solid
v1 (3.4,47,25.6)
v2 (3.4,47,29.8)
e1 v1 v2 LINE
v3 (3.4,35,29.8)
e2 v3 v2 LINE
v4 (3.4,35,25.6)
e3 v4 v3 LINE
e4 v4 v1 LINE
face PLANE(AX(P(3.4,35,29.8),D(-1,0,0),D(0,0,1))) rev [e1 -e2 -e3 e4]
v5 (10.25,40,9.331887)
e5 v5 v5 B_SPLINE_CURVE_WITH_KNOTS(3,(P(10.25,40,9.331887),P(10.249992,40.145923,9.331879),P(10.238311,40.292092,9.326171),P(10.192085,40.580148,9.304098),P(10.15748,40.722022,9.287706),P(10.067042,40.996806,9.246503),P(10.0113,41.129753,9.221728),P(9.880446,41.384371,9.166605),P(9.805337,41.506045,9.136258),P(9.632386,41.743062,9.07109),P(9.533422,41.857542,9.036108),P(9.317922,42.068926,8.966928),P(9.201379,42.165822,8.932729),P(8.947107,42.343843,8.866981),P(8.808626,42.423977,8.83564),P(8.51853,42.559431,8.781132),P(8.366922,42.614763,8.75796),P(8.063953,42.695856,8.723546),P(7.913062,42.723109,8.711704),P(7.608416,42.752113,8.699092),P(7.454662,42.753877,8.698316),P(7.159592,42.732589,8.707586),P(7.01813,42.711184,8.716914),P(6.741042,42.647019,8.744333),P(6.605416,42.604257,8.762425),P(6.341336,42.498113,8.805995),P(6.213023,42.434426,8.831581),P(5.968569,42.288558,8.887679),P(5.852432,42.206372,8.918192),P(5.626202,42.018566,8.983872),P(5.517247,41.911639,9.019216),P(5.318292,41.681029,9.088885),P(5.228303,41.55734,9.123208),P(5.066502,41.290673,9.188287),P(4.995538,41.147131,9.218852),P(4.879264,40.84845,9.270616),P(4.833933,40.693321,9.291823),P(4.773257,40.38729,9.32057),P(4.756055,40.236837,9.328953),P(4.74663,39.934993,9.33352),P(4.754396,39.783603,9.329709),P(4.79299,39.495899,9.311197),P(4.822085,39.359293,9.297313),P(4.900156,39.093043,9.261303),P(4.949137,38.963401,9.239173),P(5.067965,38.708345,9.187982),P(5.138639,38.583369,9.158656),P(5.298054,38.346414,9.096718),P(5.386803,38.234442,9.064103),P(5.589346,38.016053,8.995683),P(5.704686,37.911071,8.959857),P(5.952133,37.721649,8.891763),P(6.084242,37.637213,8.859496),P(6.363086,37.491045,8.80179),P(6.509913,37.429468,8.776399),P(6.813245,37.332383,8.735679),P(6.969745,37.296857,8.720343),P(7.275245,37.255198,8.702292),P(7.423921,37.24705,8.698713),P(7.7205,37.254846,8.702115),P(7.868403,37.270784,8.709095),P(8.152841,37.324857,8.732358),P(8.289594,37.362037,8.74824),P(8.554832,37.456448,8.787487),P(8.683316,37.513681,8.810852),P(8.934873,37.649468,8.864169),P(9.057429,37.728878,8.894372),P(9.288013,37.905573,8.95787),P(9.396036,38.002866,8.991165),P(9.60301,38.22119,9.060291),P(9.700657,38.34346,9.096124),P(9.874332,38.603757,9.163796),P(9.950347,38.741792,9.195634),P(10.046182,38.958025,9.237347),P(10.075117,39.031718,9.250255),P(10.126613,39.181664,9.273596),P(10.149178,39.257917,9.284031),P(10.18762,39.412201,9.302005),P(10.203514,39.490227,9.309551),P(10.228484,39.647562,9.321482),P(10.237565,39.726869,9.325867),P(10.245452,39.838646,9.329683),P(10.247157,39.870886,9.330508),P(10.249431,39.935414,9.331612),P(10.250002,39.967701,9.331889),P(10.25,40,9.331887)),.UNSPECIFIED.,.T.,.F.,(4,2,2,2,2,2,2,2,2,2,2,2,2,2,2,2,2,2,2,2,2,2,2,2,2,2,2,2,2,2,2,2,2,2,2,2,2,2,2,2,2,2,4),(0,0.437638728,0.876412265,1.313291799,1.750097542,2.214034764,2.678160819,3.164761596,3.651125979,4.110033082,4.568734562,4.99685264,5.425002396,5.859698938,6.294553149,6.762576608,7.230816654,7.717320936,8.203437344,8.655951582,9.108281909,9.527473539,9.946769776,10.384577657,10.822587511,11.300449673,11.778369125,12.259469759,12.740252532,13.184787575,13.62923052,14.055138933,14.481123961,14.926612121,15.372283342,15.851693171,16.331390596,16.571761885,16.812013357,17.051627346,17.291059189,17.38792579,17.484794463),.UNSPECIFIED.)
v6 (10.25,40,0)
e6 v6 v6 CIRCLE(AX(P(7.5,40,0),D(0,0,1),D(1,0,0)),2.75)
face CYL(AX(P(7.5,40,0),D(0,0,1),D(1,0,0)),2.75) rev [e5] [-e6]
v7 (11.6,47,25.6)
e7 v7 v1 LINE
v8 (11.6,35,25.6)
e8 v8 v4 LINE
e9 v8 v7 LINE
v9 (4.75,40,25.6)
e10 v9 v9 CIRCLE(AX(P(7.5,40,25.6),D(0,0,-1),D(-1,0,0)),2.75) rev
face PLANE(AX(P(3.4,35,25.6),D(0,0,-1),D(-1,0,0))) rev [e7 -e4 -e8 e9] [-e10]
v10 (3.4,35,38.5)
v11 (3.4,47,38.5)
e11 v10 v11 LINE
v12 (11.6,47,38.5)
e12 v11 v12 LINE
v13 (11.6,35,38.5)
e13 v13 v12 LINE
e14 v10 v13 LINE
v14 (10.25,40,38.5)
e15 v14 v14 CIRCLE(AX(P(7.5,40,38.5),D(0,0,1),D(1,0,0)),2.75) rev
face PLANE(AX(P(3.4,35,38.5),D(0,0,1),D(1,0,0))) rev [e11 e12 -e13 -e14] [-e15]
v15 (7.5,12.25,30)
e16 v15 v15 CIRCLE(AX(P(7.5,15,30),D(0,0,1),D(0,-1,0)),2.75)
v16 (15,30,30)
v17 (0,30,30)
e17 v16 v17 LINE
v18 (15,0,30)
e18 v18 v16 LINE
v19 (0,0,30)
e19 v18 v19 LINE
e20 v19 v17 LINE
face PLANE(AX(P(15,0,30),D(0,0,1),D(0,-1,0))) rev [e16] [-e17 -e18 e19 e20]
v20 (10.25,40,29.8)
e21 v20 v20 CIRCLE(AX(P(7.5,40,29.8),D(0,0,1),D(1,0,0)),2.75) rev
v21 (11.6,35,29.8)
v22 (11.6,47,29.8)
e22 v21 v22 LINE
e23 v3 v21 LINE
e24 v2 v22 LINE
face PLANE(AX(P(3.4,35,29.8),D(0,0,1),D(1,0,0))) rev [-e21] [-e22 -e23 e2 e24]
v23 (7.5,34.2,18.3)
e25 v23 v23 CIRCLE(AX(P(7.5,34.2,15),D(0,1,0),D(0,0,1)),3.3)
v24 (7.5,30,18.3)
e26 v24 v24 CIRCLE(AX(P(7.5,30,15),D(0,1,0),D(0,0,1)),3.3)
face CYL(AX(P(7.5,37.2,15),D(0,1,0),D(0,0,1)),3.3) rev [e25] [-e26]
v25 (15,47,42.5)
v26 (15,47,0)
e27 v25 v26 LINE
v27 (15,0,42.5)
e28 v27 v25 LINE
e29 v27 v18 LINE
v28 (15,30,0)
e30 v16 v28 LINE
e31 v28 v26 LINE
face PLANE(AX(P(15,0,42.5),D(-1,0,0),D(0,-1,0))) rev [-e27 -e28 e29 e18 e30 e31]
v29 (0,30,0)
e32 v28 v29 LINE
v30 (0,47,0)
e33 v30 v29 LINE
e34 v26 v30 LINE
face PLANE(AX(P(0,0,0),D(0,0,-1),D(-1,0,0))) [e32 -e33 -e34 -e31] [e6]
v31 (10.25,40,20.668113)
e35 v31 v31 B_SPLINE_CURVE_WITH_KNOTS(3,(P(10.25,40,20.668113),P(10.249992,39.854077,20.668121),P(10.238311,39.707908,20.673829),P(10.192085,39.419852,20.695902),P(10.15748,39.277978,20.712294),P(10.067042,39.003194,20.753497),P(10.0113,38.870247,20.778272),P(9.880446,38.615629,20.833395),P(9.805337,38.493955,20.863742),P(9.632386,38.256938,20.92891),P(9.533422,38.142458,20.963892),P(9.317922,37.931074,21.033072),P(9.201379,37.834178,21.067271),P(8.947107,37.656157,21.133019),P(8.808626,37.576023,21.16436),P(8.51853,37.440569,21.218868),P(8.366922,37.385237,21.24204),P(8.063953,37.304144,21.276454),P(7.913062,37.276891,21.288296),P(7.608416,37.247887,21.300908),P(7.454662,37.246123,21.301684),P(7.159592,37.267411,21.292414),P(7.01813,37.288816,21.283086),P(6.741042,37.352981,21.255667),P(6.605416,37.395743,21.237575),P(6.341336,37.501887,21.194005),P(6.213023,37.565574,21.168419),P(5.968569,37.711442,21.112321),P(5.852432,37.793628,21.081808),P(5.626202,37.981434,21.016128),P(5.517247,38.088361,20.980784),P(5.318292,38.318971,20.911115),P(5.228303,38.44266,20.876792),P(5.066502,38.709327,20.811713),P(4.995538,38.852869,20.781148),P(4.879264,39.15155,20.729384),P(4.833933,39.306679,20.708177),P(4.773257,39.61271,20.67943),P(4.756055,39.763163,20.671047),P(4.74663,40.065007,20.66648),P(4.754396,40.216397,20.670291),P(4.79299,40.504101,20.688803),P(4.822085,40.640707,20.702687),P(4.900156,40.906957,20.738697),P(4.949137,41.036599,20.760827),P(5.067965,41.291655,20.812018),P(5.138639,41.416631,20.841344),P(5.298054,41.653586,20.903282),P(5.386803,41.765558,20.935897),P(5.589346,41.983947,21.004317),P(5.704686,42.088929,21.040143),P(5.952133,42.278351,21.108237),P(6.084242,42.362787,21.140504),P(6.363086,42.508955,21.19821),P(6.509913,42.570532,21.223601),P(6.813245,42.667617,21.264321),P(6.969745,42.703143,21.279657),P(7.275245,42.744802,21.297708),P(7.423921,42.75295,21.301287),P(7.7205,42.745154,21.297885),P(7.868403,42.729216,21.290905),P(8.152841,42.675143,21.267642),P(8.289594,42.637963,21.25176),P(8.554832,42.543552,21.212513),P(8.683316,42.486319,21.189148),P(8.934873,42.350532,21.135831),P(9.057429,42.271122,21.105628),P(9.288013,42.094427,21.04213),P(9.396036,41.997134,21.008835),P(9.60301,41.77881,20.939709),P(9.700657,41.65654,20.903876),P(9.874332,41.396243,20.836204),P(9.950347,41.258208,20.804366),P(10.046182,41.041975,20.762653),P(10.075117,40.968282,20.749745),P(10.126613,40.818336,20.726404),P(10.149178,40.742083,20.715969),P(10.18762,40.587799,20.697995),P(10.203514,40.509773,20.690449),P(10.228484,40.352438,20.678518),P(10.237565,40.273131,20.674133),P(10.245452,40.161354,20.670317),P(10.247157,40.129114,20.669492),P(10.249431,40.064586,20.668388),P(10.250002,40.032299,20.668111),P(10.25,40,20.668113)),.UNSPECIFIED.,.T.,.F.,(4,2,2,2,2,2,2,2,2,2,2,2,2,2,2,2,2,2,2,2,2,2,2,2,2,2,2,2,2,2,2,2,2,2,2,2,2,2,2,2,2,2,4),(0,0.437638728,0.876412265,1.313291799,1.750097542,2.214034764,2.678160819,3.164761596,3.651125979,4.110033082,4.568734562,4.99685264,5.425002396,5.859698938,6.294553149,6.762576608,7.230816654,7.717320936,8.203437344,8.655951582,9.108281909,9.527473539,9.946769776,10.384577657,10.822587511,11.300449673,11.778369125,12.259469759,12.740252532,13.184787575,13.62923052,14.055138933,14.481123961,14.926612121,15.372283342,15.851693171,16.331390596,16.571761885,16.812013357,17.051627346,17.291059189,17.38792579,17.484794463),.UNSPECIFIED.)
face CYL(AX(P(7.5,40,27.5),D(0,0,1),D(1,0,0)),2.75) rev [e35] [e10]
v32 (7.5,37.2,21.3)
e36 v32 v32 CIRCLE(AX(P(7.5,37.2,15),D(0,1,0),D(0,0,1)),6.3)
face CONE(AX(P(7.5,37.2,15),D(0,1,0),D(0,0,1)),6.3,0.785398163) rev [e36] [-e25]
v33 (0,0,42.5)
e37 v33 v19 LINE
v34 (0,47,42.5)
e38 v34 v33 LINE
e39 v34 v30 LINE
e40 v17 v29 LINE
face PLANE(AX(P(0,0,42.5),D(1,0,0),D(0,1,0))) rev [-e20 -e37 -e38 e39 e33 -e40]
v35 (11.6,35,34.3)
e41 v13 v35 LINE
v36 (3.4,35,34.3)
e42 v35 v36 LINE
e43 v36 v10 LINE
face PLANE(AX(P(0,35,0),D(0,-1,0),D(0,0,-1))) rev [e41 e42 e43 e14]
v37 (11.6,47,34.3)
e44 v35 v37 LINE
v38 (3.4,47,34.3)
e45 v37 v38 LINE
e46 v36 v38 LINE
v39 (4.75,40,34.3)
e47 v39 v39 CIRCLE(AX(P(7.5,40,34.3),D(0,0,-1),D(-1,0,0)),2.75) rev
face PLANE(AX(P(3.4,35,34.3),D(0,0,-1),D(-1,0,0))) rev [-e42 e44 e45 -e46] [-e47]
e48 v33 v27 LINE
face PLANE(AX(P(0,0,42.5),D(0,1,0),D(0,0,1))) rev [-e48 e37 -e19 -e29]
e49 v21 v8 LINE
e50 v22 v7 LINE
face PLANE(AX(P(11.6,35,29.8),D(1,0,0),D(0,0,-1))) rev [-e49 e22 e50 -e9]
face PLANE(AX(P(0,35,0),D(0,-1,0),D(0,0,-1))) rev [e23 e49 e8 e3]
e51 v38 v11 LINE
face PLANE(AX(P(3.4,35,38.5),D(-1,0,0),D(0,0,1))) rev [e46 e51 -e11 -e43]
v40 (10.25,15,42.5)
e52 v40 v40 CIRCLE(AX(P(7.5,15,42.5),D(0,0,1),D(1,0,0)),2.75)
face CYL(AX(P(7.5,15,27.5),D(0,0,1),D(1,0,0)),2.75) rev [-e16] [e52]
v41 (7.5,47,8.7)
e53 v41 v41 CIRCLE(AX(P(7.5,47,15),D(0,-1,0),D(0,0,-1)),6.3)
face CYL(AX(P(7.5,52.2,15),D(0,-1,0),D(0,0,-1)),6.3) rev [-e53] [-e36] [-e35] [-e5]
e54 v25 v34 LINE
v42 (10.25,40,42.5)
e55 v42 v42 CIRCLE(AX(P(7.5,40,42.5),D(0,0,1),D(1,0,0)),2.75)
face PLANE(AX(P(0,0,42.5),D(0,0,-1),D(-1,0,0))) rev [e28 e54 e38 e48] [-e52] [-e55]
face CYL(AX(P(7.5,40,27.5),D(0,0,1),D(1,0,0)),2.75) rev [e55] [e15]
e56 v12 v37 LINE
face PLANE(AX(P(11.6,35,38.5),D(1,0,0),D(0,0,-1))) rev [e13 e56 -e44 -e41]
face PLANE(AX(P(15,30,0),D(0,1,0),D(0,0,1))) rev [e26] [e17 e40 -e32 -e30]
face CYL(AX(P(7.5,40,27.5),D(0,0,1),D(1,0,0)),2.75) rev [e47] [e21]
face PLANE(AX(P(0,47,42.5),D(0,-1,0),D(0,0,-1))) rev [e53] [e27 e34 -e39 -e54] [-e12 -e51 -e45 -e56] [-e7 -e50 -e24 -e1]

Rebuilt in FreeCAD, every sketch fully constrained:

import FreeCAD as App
import Part
import Sketcher

doc = App.newDocument("Part")
params = doc.addObject("Spreadsheet::Sheet", "Params")
for row, (alias, value) in enumerate([
    ("sketch1_width", "15 mm"),
    ("sketch1_height", "47 mm"),
    ("pad1_length", "42.5 mm"),
    ("sketch2_width", "30 mm"),
    ("sketch3_diameter", "5.5 mm"),
    ("pocket2_length", "15 mm"),
    ("sketch4_diameter", "6.5 mm"),
    ("sketch5_diameter", "5.5 mm"),
    ("sketch6_diameter", "12.6 mm"),
    ("pocket5_length", "15 mm"),
    ("sketch7_diameter", "6.6 mm"),
    ("hole_diameter", "6.6 mm"),
    ("hole_csink_diameter", "12.6 mm"),
    ("sketch8_width", "8.2 mm"),
    ("sketch8_height", "4.2 mm"),
    ("pocket6_length", "12 mm"),
], start=1):
    params.set(f"A{row}", alias)
    params.set(f"B{row}", "=" + value)
    params.setAlias(f"B{row}", alias)

body = doc.addObject("PartDesign::Body", "Body")

sketch1 = body.newObject("Sketcher::SketchObject", "Sketch")
sketch1.AttachmentSupport = (doc.getObject("XY_Plane"), [""])
sketch1.MapMode = "FlatFace"
sketch1.addGeometry([
    Part.LineSegment(App.Vector(0, 47, 0), App.Vector(0, 0, 0)),
    Part.LineSegment(App.Vector(0, 0, 0), App.Vector(15, 0, 0)),
    Part.LineSegment(App.Vector(15, 0, 0), App.Vector(15, 47, 0)),
    Part.LineSegment(App.Vector(15, 47, 0), App.Vector(0, 47, 0)),
], False)
sketch1.addConstraint([
    Sketcher.Constraint("Coincident", 0, 2, 1, 1),
    Sketcher.Constraint("Coincident", 1, 2, 2, 1),
    Sketcher.Constraint("Coincident", 2, 2, 3, 1),
    Sketcher.Constraint("Coincident", 3, 2, 0, 1),
    Sketcher.Constraint("Vertical", 0),
    Sketcher.Constraint("Horizontal", 1),
    Sketcher.Constraint("Vertical", 2),
    Sketcher.Constraint("Horizontal", 3),
    Sketcher.Constraint("Coincident", 0, 2, -1, 1),
    Sketcher.Constraint("DistanceX", 1, 1, 1, 2, 15.0),
    Sketcher.Constraint("DistanceY", 0, 2, 0, 1, 47.0),
])
sketch1.setExpression("Constraints[9]", "Params.sketch1_width")
sketch1.setExpression("Constraints[10]", "Params.sketch1_height")
pad1 = body.newObject("PartDesign::Pad", "Pad")
pad1.Profile = sketch1
pad1.setExpression("Length", "Params.pad1_length")

sketch2 = body.newObject("Sketcher::SketchObject", "Sketch001")
sketch2.AttachmentSupport = (doc.getObject("YZ_Plane"), [""])
sketch2.MapMode = "FlatFace"
sketch2.addGeometry([
    Part.LineSegment(App.Vector(30, 0, 0), App.Vector(0, 0, 0)),
    Part.LineSegment(App.Vector(0, 0, 0), App.Vector(0, 30, 0)),
    Part.LineSegment(App.Vector(0, 30, 0), App.Vector(30, 30, 0)),
    Part.LineSegment(App.Vector(30, 30, 0), App.Vector(30, 0, 0)),
], False)
sketch2.addConstraint([
    Sketcher.Constraint("Coincident", 0, 2, 1, 1),
    Sketcher.Constraint("Coincident", 1, 2, 2, 1),
    Sketcher.Constraint("Coincident", 2, 2, 3, 1),
    Sketcher.Constraint("Coincident", 3, 2, 0, 1),
    Sketcher.Constraint("Horizontal", 0),
    Sketcher.Constraint("Vertical", 1),
    Sketcher.Constraint("Horizontal", 2),
    Sketcher.Constraint("Vertical", 3),
    Sketcher.Constraint("Coincident", 0, 2, -1, 1),
    Sketcher.Constraint("Equal", 2, 1),
    Sketcher.Constraint("DistanceX", 0, 2, 0, 1, 30.0),
])
sketch2.setExpression("Constraints[10]", "Params.sketch2_width")
pocket1 = body.newObject("PartDesign::Pocket", "Pocket")
pocket1.Profile = sketch2
pocket1.Type = "ThroughAll"
pocket1.Reversed = True

sketch3 = body.newObject("Sketcher::SketchObject", "Sketch002")
sketch3.AttachmentSupport = (doc.getObject("XY_Plane"), [""])
sketch3.MapMode = "FlatFace"
sketch3.AttachmentOffset = App.Placement(App.Vector(0, 0, 42.5), App.Rotation())
sketch3.addGeometry([
    Part.Circle(App.Vector(7.5, 15, 0), App.Vector(0, 0, 1), 2.75),
    Part.Circle(App.Vector(7.5, 40, 0), App.Vector(0, 0, 1), 2.75),
], False)
sketch3.addConstraint([
    Sketcher.Constraint("Equal", 0, 1),
    Sketcher.Constraint("Vertical", 0, 3, 1, 3),
    Sketcher.Constraint("Diameter", 0, 5.5),
    Sketcher.Constraint("DistanceY", -1, 1, 0, 3, 15.0),
    Sketcher.Constraint("DistanceY", -1, 1, 1, 3, 40.0),
    Sketcher.Constraint("DistanceX", -1, 1, 0, 3, 7.5),
])
sketch3.setExpression("Constraints[2]", "Params.sketch3_diameter")
pocket2 = body.newObject("PartDesign::Pocket", "Pocket001")
pocket2.Profile = sketch3
pocket2.setExpression("Length", "Params.pocket2_length")

sketch4 = body.newObject("Sketcher::SketchObject", "Sketch003")
sketch4.AttachmentSupport = (doc.getObject("XZ_Plane"), [""])
sketch4.MapMode = "FlatFace"
sketch4.AttachmentOffset = App.Placement(App.Vector(0, 0, -47), App.Rotation())
sketch4.addGeometry(Part.Circle(App.Vector(7.5, 15, 0), App.Vector(0, 0, 1), 3.25), False)
sketch4.addConstraint([
    Sketcher.Constraint("Diameter", 0, 6.5),
    Sketcher.Constraint("DistanceY", -1, 1, 0, 3, 15.0),
    Sketcher.Constraint("DistanceX", -1, 1, 0, 3, 7.5),
])
sketch4.setExpression("Constraints[0]", "Params.sketch4_diameter")
pocket3 = body.newObject("PartDesign::Pocket", "Pocket002")
pocket3.Profile = sketch4
pocket3.Type = "UpToFirst"
pocket3.Reversed = True

sketch5 = body.newObject("Sketcher::SketchObject", "Sketch004")
sketch5.AttachmentSupport = (doc.getObject("XY_Plane"), [""])
sketch5.MapMode = "FlatFace"
sketch5.AttachmentOffset = App.Placement(App.Vector(0, 0, 27.5), App.Rotation())
sketch5.addGeometry(Part.Circle(App.Vector(7.5, 40, 0), App.Vector(0, 0, 1), 2.75), False)
sketch5.addConstraint([
    Sketcher.Constraint("Diameter", 0, 5.5),
    Sketcher.Constraint("DistanceY", -1, 1, 0, 3, 40.0),
    Sketcher.Constraint("DistanceX", -1, 1, 0, 3, 7.5),
])
sketch5.setExpression("Constraints[0]", "Params.sketch5_diameter")
pocket4 = body.newObject("PartDesign::Pocket", "Pocket003")
pocket4.Profile = sketch5
pocket4.Type = "ThroughAll"

sketch6 = body.newObject("Sketcher::SketchObject", "Sketch005")
sketch6.AttachmentSupport = (doc.getObject("XZ_Plane"), [""])
sketch6.MapMode = "FlatFace"
sketch6.AttachmentOffset = App.Placement(App.Vector(0, 0, -37.2), App.Rotation())
sketch6.addGeometry(Part.Circle(App.Vector(7.5, 15, 0), App.Vector(0, 0, 1), 6.3), False)
sketch6.addConstraint([
    Sketcher.Constraint("Diameter", 0, 12.6),
    Sketcher.Constraint("DistanceY", -1, 1, 0, 3, 15.0),
    Sketcher.Constraint("DistanceX", -1, 1, 0, 3, 7.5),
])
sketch6.setExpression("Constraints[0]", "Params.sketch6_diameter")
pocket5 = body.newObject("PartDesign::Pocket", "Pocket004")
pocket5.Profile = sketch6
pocket5.setExpression("Length", "Params.pocket5_length")

sketch7 = body.newObject("Sketcher::SketchObject", "Sketch006")
sketch7.AttachmentSupport = (doc.getObject("XZ_Plane"), [""])
sketch7.MapMode = "FlatFace"
sketch7.AttachmentOffset = App.Placement(App.Vector(0, 0, -37.2), App.Rotation())
sketch7.addGeometry(Part.Circle(App.Vector(7.5, 15, 0), App.Vector(0, 0, 1), 3.3), False)
sketch7.addConstraint([
    Sketcher.Constraint("Diameter", 0, 6.6),
    Sketcher.Constraint("DistanceY", -1, 1, 0, 3, 15.0),
    Sketcher.Constraint("DistanceX", -1, 1, 0, 3, 7.5),
])
sketch7.setExpression("Constraints[0]", "Params.sketch7_diameter")
doc.recompute()
hole = body.newObject("PartDesign::Hole", "Hole")
hole.Profile = sketch7
hole.ThreadType = "None"
hole.setExpression("Diameter", "Params.hole_diameter")
hole.DepthType = "ThroughAll"
hole.HoleCutType = "Countersink"
hole.setExpression("HoleCutDiameter", "Params.hole_csink_diameter")
hole.HoleCutCountersinkAngle = 90
hole.Reversed = True

sketch8 = body.newObject("Sketcher::SketchObject", "Sketch007")
sketch8.AttachmentSupport = (doc.getObject("XZ_Plane"), [""])
sketch8.MapMode = "FlatFace"
sketch8.AttachmentOffset = App.Placement(App.Vector(0, 0, -47), App.Rotation())
sketch8.addGeometry([
    Part.LineSegment(App.Vector(3.4, 34.3, 0), App.Vector(3.4, 38.5, 0)),
    Part.LineSegment(App.Vector(3.4, 38.5, 0), App.Vector(11.6, 38.5, 0)),
    Part.LineSegment(App.Vector(11.6, 38.5, 0), App.Vector(11.6, 34.3, 0)),
    Part.LineSegment(App.Vector(11.6, 34.3, 0), App.Vector(3.4, 34.3, 0)),
    Part.LineSegment(App.Vector(3.4, 25.6, 0), App.Vector(3.4, 29.8, 0)),
    Part.LineSegment(App.Vector(3.4, 29.8, 0), App.Vector(11.6, 29.8, 0)),
    Part.LineSegment(App.Vector(11.6, 29.8, 0), App.Vector(11.6, 25.6, 0)),
    Part.LineSegment(App.Vector(11.6, 25.6, 0), App.Vector(3.4, 25.6, 0)),
], False)
sketch8.addConstraint([
    Sketcher.Constraint("Coincident", 0, 2, 1, 1),
    Sketcher.Constraint("Coincident", 1, 2, 2, 1),
    Sketcher.Constraint("Coincident", 2, 2, 3, 1),
    Sketcher.Constraint("Coincident", 3, 2, 0, 1),
    Sketcher.Constraint("Coincident", 4, 2, 5, 1),
    Sketcher.Constraint("Coincident", 5, 2, 6, 1),
    Sketcher.Constraint("Coincident", 6, 2, 7, 1),
    Sketcher.Constraint("Coincident", 7, 2, 4, 1),
    Sketcher.Constraint("Vertical", 0),
    Sketcher.Constraint("Horizontal", 1),
    Sketcher.Constraint("Vertical", 2),
    Sketcher.Constraint("Horizontal", 3),
    Sketcher.Constraint("Vertical", 4),
    Sketcher.Constraint("Horizontal", 5),
    Sketcher.Constraint("Vertical", 6),
    Sketcher.Constraint("Horizontal", 7),
    Sketcher.Constraint("Vertical", 3, 2, 4, 2),
    Sketcher.Constraint("Vertical", 2, 2, 5, 2),
    Sketcher.Constraint("Equal", 2, 4),
    Sketcher.Constraint("DistanceX", 1, 1, 1, 2, 8.2),
    Sketcher.Constraint("DistanceY", 0, 1, 0, 2, 4.2),
    Sketcher.Constraint("DistanceX", -1, 1, 0, 2, 3.4),
    Sketcher.Constraint("DistanceY", -1, 1, 0, 2, 38.5),
    Sketcher.Constraint("DistanceY", -1, 1, 4, 2, 29.8),
])
sketch8.setExpression("Constraints[19]", "Params.sketch8_width")
sketch8.setExpression("Constraints[20]", "Params.sketch8_height")
pocket6 = body.newObject("PartDesign::Pocket", "Pocket005")
pocket6.Profile = sketch8
pocket6.setExpression("Length", "Params.pocket6_length")
pocket6.Reversed = True

doc.recompute()
